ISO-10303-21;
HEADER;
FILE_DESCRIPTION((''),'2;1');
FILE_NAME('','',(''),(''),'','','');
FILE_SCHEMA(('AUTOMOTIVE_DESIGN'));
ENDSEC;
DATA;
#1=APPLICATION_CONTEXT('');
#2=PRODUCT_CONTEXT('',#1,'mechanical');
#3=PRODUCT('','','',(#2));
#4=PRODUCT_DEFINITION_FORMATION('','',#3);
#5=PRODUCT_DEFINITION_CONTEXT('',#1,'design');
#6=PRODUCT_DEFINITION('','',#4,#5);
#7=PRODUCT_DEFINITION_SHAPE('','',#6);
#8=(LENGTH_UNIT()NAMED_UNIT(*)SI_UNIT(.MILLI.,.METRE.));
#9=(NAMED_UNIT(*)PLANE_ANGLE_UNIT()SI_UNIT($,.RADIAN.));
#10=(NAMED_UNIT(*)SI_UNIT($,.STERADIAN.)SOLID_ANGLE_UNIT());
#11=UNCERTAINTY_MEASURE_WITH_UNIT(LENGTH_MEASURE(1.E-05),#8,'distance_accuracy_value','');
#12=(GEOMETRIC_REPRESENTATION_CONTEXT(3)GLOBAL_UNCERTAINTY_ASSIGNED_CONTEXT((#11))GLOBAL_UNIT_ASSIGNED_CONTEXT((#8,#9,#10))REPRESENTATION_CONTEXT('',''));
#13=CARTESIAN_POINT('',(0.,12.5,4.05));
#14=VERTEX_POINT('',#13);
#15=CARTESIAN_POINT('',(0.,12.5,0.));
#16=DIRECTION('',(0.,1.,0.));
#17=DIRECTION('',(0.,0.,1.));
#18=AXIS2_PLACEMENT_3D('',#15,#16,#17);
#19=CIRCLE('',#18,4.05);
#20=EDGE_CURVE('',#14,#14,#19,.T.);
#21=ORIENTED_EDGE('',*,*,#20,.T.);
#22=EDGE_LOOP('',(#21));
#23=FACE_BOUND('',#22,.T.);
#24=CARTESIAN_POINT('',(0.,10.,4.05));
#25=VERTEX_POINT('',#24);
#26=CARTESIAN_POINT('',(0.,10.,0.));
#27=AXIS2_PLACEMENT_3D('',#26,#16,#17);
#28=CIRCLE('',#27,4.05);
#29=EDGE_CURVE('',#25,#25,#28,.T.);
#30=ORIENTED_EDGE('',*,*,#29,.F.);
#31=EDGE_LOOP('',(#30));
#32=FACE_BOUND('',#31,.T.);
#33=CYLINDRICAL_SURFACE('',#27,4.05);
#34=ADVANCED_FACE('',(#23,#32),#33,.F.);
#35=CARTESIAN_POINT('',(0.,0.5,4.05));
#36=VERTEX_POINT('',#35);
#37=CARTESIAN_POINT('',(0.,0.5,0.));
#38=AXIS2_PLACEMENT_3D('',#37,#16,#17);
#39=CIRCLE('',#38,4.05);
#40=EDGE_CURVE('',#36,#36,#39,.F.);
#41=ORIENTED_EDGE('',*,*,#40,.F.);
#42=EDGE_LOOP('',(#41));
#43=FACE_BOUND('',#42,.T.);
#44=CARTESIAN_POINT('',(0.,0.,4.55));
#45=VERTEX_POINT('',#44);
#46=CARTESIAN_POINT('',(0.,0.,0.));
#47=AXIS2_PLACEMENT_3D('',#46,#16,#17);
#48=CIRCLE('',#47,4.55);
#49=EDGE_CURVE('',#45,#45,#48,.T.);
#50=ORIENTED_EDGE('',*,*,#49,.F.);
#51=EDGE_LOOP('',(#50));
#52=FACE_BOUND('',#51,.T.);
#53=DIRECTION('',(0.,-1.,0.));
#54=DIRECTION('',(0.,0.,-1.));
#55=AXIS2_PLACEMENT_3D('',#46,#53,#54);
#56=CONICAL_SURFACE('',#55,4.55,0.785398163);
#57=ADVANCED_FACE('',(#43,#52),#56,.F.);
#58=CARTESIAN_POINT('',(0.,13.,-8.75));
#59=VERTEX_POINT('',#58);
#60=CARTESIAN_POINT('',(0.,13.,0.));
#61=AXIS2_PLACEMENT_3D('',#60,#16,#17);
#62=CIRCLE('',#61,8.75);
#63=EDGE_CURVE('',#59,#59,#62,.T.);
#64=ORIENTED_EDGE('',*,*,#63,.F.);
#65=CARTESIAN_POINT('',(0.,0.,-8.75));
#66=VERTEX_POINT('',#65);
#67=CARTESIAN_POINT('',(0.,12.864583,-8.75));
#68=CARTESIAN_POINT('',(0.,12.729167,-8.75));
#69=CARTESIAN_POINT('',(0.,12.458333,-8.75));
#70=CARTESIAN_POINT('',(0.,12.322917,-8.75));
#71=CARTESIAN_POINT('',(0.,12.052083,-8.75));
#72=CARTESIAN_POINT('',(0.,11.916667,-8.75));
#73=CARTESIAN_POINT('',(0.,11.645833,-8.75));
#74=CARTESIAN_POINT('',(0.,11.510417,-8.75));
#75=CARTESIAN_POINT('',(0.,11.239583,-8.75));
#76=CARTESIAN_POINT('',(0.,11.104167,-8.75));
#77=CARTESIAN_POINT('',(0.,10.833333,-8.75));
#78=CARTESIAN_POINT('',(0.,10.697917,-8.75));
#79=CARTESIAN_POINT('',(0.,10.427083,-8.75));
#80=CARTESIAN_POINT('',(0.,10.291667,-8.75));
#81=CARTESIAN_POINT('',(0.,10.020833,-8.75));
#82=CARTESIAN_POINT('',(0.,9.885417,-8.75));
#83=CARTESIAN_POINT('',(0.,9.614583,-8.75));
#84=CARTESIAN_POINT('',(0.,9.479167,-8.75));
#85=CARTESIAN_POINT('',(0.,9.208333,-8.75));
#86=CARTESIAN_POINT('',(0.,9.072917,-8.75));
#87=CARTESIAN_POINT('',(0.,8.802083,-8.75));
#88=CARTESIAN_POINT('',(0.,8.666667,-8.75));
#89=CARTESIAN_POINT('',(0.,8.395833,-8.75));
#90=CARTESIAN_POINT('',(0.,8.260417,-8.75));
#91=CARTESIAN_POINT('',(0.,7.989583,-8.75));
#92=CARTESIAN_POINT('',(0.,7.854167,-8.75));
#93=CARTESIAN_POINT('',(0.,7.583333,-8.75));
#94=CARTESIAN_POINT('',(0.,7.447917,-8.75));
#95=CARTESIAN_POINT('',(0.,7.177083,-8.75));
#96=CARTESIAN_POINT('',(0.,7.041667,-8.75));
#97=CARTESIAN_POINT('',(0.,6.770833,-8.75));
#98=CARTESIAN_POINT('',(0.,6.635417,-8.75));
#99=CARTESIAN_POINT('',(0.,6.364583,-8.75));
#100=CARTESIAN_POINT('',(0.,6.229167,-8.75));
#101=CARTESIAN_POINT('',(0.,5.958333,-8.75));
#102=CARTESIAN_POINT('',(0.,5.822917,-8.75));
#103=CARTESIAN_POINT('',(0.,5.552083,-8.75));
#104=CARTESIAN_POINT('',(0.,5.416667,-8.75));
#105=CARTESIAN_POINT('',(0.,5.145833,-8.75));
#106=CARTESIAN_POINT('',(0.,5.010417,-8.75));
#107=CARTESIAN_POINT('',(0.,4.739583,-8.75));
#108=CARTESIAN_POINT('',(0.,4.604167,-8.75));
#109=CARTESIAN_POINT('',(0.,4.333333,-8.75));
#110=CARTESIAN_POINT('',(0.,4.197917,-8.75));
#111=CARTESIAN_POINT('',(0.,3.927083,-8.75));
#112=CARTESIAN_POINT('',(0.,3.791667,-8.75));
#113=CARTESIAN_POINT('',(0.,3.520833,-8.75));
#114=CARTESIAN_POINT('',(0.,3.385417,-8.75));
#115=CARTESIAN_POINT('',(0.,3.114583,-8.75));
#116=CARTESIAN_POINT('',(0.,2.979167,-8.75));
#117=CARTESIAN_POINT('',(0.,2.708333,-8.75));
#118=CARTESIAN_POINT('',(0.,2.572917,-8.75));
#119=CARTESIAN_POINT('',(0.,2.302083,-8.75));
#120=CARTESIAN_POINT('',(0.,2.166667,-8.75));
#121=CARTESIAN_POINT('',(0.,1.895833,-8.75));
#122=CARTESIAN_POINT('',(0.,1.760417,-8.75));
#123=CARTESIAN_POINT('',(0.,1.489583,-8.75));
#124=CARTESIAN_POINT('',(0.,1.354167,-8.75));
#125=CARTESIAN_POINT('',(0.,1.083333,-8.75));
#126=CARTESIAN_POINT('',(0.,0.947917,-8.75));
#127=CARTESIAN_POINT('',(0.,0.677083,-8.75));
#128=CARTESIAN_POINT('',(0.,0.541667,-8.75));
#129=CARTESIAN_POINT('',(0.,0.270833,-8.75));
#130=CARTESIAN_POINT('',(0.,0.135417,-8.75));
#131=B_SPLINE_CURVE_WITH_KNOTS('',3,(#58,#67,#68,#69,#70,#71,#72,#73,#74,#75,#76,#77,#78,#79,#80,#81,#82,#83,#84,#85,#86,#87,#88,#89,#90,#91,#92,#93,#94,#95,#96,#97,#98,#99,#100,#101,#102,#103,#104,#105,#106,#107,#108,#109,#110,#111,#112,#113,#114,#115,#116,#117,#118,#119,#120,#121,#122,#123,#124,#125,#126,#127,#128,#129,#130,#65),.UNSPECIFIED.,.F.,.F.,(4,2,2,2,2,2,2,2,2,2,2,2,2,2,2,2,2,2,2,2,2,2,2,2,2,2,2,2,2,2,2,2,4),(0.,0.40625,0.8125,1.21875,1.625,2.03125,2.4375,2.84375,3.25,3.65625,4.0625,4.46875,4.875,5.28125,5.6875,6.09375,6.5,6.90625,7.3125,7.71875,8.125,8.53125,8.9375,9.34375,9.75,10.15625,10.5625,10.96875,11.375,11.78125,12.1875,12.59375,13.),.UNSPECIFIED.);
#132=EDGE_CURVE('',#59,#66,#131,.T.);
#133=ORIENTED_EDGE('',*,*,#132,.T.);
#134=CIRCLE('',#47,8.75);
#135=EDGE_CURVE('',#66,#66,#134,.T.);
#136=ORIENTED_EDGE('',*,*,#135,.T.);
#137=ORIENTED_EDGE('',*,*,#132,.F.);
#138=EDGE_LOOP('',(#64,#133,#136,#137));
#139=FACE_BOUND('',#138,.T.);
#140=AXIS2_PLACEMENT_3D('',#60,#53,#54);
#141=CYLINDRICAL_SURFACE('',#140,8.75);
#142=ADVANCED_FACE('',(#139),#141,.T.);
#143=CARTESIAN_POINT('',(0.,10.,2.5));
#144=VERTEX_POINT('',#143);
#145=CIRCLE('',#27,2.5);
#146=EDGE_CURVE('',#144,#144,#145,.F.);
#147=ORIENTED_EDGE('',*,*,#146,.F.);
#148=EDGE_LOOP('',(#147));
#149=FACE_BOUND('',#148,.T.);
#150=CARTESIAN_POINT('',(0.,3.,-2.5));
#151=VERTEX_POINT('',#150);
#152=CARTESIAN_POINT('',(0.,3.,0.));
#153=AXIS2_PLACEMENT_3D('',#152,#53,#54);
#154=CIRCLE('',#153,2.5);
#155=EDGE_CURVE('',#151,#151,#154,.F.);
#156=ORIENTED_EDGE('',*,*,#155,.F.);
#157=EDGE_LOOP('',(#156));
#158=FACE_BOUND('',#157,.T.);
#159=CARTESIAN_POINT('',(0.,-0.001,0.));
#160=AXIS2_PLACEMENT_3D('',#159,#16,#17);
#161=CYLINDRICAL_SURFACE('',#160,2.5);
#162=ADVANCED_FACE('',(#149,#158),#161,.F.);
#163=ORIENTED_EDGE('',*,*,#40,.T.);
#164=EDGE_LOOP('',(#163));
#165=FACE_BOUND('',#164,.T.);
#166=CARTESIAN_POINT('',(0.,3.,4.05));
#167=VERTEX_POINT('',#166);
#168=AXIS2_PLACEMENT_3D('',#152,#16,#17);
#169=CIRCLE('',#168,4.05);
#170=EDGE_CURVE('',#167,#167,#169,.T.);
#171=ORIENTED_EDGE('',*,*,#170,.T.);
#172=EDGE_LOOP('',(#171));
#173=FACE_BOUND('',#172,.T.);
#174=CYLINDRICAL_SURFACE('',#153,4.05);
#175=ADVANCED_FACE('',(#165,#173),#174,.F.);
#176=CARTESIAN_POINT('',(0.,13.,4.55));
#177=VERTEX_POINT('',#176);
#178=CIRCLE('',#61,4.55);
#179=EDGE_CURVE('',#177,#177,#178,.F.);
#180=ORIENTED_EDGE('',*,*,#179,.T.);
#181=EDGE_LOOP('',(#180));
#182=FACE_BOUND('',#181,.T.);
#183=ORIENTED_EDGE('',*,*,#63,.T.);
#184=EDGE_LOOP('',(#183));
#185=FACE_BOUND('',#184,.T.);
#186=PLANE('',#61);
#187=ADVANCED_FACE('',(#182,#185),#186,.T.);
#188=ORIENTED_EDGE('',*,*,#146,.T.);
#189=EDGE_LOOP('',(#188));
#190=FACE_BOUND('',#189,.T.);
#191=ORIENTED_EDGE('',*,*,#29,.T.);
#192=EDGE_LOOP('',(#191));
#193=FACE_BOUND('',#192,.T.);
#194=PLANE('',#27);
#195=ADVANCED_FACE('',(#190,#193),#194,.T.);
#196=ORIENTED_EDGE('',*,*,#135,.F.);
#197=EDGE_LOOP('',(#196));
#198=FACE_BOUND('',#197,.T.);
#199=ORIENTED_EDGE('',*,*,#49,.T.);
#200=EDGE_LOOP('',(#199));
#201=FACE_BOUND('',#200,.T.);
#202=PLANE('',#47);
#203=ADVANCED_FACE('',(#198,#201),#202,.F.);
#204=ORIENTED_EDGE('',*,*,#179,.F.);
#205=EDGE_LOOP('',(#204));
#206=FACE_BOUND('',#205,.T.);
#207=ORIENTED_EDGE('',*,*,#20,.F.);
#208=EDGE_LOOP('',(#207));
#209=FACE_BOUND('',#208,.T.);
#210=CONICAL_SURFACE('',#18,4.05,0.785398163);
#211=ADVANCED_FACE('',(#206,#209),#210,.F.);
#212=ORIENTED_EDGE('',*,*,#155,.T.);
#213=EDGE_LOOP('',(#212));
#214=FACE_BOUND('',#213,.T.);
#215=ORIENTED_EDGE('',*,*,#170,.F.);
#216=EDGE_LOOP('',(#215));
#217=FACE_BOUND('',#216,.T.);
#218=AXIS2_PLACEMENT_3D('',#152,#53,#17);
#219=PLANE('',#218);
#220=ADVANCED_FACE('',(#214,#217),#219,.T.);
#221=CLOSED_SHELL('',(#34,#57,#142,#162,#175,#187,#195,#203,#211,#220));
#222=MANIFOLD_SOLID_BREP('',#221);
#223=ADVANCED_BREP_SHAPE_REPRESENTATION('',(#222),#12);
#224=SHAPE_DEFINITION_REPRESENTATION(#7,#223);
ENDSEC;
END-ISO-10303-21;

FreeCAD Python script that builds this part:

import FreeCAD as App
import Part
import Sketcher
from FreeCAD import Vector
Q = App.Units.Quantity


def edges_at(feature, points):
    """Names of the edges that pass closest to the given points."""
    edges = feature.Shape.Edges
    near = lambda p: min(range(len(edges)), key=lambda i: edges[i].distToShape(Part.Vertex(*p))[0])
    return sorted({f"Edge{near(p) + 1}" for p in points})

doc = App.newDocument("Part")
body = doc.addObject("PartDesign::Body", "Body")

sketch1 = doc.addObject("Sketcher::SketchObject", "Sketch")
body.addObject(sketch1)
sketch1.AttachmentSupport = (doc.XZ_Plane, [""])
sketch1.MapMode = "FlatFace"
sketch1.addGeometry(Part.Circle(Vector(0, 0, 0), Vector(0, 0, 1), 8.75), False)
sketch1.addConstraint(Sketcher.Constraint("Coincident", 0, 3, -1, 1))
sketch1.addConstraint(Sketcher.Constraint("Diameter", 0, Q("17.5 mm")))
pad1 = doc.addObject("PartDesign::Pad", "Pad")
body.addObject(pad1)
pad1.Profile = sketch1
pad1.Length = 13
pad1.Reversed = True

sketch2 = doc.addObject("Sketcher::SketchObject", "Sketch001")
body.addObject(sketch2)
sketch2.AttachmentSupport = (doc.XZ_Plane, [""])
sketch2.MapMode = "FlatFace"
sketch2.AttachmentOffset = App.Placement(Vector(0, 0, -13), App.Rotation())
sketch2.addGeometry(Part.Circle(Vector(0, 0, 0), Vector(0, 0, 1), 2.5), False)
sketch2.addConstraint(Sketcher.Constraint("Coincident", 0, 3, -1, 1))
sketch2.addConstraint(Sketcher.Constraint("Diameter", 0, Q("5 mm")))
pocket1 = doc.addObject("PartDesign::Pocket", "Pocket")
body.addObject(pocket1)
pocket1.Profile = sketch2
pocket1.Type = "UpToFirst"
pocket1.Reversed = True

sketch3 = doc.addObject("Sketcher::SketchObject", "Sketch002")
body.addObject(sketch3)
sketch3.AttachmentSupport = (doc.XZ_Plane, [""])
sketch3.MapMode = "FlatFace"
sketch3.AttachmentOffset = App.Placement(Vector(0, 0, -13), App.Rotation())
sketch3.addGeometry(Part.Circle(Vector(0, 0, 0), Vector(0, 0, 1), 4.05), False)
sketch3.addConstraint(Sketcher.Constraint("Coincident", 0, 3, -1, 1))
sketch3.addConstraint(Sketcher.Constraint("Diameter", 0, Q("8.1 mm")))
pocket2 = doc.addObject("PartDesign::Pocket", "Pocket001")
body.addObject(pocket2)
pocket2.Profile = sketch3
pocket2.Length = 3
pocket2.Reversed = True
doc.recompute()

datumplane = doc.addObject("PartDesign::Plane", "DatumPlane")
body.addObject(datumplane)
datumplane.AttachmentSupport = (doc.XZ_Plane, [""])
datumplane.MapMode = "FlatFace"
datumplane.AttachmentOffset = App.Placement(Vector(0, 0, -6.5), App.Rotation())
mirrored = doc.addObject("PartDesign::Mirrored", "Mirrored")
body.addObject(mirrored)
mirrored.Originals = [pocket2]
mirrored.MirrorPlane = (datumplane, [""])
body.Tip = mirrored
doc.recompute()

chamfer = doc.addObject("PartDesign::Chamfer", "Chamfer")
body.addObject(chamfer)
chamfer.Base = (mirrored, edges_at(mirrored, [(0, 13, -4.05), (0, 0, -4.05)]))
chamfer.Size = 0.5

doc.recompute()
